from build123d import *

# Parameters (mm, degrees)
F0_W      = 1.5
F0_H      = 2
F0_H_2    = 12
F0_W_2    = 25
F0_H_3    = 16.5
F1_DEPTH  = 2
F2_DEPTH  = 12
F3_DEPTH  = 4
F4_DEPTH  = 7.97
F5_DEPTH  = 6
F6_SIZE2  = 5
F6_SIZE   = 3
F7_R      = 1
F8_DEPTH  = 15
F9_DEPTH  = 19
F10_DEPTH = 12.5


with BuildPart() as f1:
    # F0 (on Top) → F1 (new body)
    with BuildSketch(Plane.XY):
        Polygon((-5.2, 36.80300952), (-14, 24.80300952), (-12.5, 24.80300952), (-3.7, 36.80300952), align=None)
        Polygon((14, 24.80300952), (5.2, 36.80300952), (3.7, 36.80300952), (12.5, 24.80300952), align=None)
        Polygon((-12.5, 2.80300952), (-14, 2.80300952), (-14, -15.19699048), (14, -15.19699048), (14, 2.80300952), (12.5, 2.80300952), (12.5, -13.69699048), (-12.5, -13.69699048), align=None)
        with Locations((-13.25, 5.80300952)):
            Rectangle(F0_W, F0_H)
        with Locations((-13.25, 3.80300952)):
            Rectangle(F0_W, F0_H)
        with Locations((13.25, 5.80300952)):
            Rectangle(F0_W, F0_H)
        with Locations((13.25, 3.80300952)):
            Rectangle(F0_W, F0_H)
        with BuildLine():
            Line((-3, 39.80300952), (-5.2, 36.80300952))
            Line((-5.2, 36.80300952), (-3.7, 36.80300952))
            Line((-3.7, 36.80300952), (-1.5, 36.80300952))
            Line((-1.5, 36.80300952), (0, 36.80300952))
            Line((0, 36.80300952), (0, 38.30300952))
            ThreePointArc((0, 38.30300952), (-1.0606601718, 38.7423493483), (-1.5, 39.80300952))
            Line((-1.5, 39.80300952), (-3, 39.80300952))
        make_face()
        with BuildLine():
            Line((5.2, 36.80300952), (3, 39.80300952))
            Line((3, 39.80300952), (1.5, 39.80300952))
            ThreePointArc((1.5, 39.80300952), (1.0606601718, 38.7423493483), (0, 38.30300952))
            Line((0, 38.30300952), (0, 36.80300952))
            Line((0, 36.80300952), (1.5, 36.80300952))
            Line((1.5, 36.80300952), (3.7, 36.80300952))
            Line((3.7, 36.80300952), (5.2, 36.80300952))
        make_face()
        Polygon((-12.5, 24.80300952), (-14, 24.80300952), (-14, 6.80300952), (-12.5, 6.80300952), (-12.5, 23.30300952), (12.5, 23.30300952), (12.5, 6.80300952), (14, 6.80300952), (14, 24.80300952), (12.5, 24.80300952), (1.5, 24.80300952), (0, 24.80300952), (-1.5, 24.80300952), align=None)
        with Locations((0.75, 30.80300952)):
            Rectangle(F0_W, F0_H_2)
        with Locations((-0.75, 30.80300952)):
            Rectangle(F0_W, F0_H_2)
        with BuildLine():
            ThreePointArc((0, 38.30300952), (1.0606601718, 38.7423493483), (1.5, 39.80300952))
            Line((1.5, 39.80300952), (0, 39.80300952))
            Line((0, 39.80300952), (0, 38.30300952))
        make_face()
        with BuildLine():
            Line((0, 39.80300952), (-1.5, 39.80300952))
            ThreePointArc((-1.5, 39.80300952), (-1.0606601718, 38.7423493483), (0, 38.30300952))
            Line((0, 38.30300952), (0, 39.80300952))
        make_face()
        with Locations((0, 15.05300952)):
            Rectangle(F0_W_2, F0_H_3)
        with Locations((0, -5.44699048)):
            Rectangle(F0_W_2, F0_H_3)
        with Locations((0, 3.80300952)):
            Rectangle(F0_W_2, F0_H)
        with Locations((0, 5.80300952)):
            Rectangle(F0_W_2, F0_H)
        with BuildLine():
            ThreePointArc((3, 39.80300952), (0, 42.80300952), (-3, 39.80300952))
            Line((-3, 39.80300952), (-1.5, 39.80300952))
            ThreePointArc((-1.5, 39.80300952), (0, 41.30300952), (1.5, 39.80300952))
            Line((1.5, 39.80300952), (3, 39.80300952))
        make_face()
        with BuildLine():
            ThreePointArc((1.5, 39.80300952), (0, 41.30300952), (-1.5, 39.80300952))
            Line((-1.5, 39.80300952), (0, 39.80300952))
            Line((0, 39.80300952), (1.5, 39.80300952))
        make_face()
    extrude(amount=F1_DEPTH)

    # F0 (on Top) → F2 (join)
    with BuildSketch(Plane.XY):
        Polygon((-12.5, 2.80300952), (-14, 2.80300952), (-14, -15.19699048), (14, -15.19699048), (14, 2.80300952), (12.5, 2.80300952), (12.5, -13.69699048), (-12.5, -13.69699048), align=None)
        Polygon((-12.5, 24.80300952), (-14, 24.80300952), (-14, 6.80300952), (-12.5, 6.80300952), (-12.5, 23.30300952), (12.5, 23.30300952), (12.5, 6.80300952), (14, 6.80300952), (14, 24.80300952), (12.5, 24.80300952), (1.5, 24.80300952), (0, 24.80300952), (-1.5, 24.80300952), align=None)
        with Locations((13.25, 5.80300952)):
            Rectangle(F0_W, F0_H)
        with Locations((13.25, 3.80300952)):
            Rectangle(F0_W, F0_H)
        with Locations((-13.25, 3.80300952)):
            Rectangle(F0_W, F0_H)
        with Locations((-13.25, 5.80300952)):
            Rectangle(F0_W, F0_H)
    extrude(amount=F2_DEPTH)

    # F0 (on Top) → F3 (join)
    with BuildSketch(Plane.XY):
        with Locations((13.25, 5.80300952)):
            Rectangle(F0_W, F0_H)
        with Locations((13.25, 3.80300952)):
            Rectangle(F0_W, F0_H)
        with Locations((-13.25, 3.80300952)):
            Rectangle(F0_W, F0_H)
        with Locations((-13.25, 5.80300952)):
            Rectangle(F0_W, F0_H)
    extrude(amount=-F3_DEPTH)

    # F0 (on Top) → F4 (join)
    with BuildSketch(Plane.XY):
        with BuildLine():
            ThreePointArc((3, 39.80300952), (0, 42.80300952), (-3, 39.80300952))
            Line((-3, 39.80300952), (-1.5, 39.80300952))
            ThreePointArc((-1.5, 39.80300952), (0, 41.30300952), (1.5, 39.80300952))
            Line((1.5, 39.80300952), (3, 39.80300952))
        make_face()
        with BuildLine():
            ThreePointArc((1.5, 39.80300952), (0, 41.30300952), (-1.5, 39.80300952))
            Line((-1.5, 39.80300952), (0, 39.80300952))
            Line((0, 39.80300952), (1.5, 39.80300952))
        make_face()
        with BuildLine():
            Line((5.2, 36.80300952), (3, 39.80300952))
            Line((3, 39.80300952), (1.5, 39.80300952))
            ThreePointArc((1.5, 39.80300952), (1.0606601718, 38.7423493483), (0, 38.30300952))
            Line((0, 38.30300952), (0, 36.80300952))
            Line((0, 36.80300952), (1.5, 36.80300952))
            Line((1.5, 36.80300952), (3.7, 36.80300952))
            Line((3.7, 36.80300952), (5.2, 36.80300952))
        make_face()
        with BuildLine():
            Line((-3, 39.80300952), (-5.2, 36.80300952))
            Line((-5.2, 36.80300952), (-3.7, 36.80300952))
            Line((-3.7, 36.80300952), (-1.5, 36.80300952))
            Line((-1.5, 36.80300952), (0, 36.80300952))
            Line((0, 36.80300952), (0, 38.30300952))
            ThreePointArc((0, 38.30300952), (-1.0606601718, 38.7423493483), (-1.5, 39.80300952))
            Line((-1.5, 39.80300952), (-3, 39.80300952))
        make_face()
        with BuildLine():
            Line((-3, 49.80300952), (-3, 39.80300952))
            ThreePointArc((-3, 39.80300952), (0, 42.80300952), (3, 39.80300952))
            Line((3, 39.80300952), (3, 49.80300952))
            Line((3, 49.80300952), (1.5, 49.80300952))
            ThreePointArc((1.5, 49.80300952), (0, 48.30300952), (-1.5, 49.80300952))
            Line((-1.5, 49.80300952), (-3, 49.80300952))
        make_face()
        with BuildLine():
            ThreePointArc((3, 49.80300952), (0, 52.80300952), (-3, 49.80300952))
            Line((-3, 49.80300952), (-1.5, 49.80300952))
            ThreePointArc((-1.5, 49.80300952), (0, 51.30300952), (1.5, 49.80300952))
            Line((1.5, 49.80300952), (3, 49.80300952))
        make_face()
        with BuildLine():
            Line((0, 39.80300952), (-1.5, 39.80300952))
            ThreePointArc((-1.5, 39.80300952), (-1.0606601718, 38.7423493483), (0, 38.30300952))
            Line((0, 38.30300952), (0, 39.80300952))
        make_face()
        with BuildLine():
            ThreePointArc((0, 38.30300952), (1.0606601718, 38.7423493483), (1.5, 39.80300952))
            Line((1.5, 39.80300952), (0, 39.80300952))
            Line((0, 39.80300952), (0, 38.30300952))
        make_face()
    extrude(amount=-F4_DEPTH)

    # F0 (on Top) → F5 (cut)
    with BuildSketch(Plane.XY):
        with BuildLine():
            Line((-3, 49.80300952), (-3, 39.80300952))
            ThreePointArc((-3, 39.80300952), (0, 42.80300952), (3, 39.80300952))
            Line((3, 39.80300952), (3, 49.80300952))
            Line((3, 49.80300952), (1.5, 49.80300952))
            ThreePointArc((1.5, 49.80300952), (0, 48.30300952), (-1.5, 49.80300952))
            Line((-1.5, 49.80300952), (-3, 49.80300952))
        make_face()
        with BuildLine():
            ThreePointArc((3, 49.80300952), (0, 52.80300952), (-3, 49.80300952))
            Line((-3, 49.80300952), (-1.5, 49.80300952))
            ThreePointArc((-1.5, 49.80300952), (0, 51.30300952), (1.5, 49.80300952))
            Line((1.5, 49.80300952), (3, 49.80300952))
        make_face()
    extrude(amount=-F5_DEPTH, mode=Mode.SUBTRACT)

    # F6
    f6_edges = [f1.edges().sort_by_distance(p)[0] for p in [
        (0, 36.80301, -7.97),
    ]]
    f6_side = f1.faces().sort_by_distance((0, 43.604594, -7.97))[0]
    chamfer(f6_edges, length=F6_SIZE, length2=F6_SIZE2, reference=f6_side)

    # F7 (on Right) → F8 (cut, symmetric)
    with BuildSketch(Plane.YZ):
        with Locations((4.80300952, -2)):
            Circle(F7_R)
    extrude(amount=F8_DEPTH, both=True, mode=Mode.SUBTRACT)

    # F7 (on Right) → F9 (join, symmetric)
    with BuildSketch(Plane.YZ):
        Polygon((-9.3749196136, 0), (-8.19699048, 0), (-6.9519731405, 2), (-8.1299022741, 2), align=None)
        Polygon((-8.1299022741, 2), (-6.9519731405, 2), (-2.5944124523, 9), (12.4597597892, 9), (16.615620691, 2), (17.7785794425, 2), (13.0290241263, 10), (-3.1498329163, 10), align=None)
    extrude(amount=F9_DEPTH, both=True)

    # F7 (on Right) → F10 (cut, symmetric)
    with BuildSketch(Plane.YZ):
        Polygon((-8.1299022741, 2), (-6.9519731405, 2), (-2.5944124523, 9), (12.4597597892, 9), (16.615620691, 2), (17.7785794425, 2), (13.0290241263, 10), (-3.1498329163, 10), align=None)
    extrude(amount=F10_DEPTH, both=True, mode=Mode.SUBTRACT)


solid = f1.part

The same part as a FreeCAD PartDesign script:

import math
import FreeCAD as App
import Part
import Sketcher
from FreeCAD import Vector


def edges_at(feature, points):
    """Names of the edges that pass closest to the given points."""
    edges = feature.Shape.Edges
    near = lambda p: min(range(len(edges)), key=lambda i: edges[i].distToShape(Part.Vertex(*p))[0])
    return sorted({f"Edge{near(p) + 1}" for p in points})


def add_polygon(sketch, points):
    """Adds a closed chain of lines whose ends are joined by coincident constraints."""
    first, n = sketch.GeometryCount, len(points)
    for a, b in zip(points, points[1:] + points[:1]):
        sketch.addGeometry(Part.LineSegment(App.Vector(*a, 0), App.Vector(*b, 0)), False)
    for i in range(n):
        sketch.addConstraint(Sketcher.Constraint("Coincident", first + i, 2, first + (i + 1) % n, 1))

doc = App.newDocument("Part")
body = doc.addObject("PartDesign::Body", "Body")

# Sketch on XY plane
sketch1 = body.newObject("Sketcher::SketchObject", "Sketch")
sketch1.AttachmentSupport = (doc.getObject("XY_Plane"), [""])
sketch1.MapMode = "FlatFace"
sketch1.addGeometry(Part.LineSegment(Vector(14, 24.8, 0), Vector(3, 39.8, 0)), False)  # 0
sketch1.addGeometry(Part.ArcOfCircle(Part.Circle(Vector(0, 39.8, 0), Vector(0, 0, 1), 3), math.radians(0), math.radians(180)), False)  # 1
sketch1.addGeometry(Part.LineSegment(Vector(-3, 39.8, 0), Vector(-14, 24.8, 0)), False)  # 2
sketch1.addGeometry(Part.LineSegment(Vector(-14, 24.8, 0), Vector(-14, -15.2, 0)), False)  # 3
sketch1.addGeometry(Part.LineSegment(Vector(-14, -15.2, 0), Vector(14, -15.2, 0)), False)  # 4
sketch1.addGeometry(Part.LineSegment(Vector(14, -15.2, 0), Vector(14, 24.8, 0)), False)  # 5
add_polygon(sketch1, [(-12.5, 24.8), (-3.7, 36.8), (-1.5, 36.8), (-1.5, 24.8)])  # lines 6-9
add_polygon(sketch1, [(1.5, 36.8), (3.7, 36.8), (12.5, 24.8), (1.5, 24.8)])  # lines 10-13
sketch1.addConstraint(Sketcher.Constraint("Coincident", 0, 2, 1, 1))
sketch1.addConstraint(Sketcher.Constraint("Coincident", 1, 2, 2, 1))
sketch1.addConstraint(Sketcher.Constraint("Coincident", 2, 2, 3, 1))
sketch1.addConstraint(Sketcher.Constraint("Coincident", 3, 2, 4, 1))
sketch1.addConstraint(Sketcher.Constraint("Coincident", 4, 2, 5, 1))
sketch1.addConstraint(Sketcher.Constraint("Coincident", 5, 2, 0, 1))
sketch1.addConstraint(Sketcher.Constraint("Vertical", 3))
sketch1.addConstraint(Sketcher.Constraint("Horizontal", 4))
sketch1.addConstraint(Sketcher.Constraint("Vertical", 5))
sketch1.addConstraint(Sketcher.Constraint("Horizontal", 7))
sketch1.addConstraint(Sketcher.Constraint("Vertical", 8))
sketch1.addConstraint(Sketcher.Constraint("Horizontal", 9))
sketch1.addConstraint(Sketcher.Constraint("Horizontal", 10))
sketch1.addConstraint(Sketcher.Constraint("Horizontal", 12))
sketch1.addConstraint(Sketcher.Constraint("Vertical", 13))
sketch1.addConstraint(Sketcher.Constraint("Symmetric", 0, 2, 1, 2, -2))
sketch1.addConstraint(Sketcher.Constraint("Symmetric", 2, 2, 5, 2, -2))
sketch1.addConstraint(Sketcher.Constraint("Symmetric", 6, 2, 10, 2, -2))
sketch1.addConstraint(Sketcher.Constraint("Symmetric", 9, 2, 11, 2, -2))
sketch1.addConstraint(Sketcher.Constraint("Parallel", 2, 6))
sketch1.addConstraint(Sketcher.Constraint("Horizontal", 1, 3, 0, 2))
sketch1.addConstraint(Sketcher.Constraint("Horizontal", 5, 2, 8, 2))
sketch1.addConstraint(Sketcher.Constraint("Equal", 7, 10))
sketch1.addConstraint(Sketcher.Constraint("Radius", 1, 3.0))
sketch1.addConstraint(Sketcher.Constraint("DistanceX", 4, 1, 4, 2, 28.0))
sketch1.addConstraint(Sketcher.Constraint("DistanceX", 9, 2, 9, 1, 11.0))
sketch1.addConstraint(Sketcher.Constraint("DistanceY", 3, 2, 3, 1, 40.0))
sketch1.addConstraint(Sketcher.Constraint("DistanceY", 8, 2, 8, 1, 12.0))
sketch1.addConstraint(Sketcher.Constraint("DistanceX", 7, 1, 7, 2, 2.2))
sketch1.addConstraint(Sketcher.Constraint("DistanceX", 8, 2, 11, 2, 14.0))
sketch1.addConstraint(Sketcher.Constraint("DistanceY", -1, 1, 1, 3, 39.80301))
pad1 = body.newObject("PartDesign::Pad", "Pad")
pad1.Profile = sketch1
pad1.Length = 2

# Sketch on XY plane
sketch2 = body.newObject("Sketcher::SketchObject", "Sketch001")
sketch2.AttachmentSupport = (doc.getObject("XY_Plane"), [""])
sketch2.MapMode = "FlatFace"
add_polygon(sketch2, [(-14, -15), (14, -15), (14, 25), (-14, 25)])  # lines 0-3
add_polygon(sketch2, [(-12, 23), (12, 23), (12, -14), (-12, -14)])  # lines 4-7
sketch2.addConstraint(Sketcher.Constraint("Horizontal", 0))
sketch2.addConstraint(Sketcher.Constraint("Vertical", 1))
sketch2.addConstraint(Sketcher.Constraint("Horizontal", 2))
sketch2.addConstraint(Sketcher.Constraint("Vertical", 3))
sketch2.addConstraint(Sketcher.Constraint("Horizontal", 4))
sketch2.addConstraint(Sketcher.Constraint("Vertical", 5))
sketch2.addConstraint(Sketcher.Constraint("Horizontal", 6))
sketch2.addConstraint(Sketcher.Constraint("Vertical", 7))
sketch2.addConstraint(Sketcher.Constraint("DistanceX", 0, 1, 0, 2, 28.0))
sketch2.addConstraint(Sketcher.Constraint("DistanceX", 4, 1, 4, 2, 25.0))
sketch2.addConstraint(Sketcher.Constraint("DistanceY", 1, 1, 1, 2, 40.0))
sketch2.addConstraint(Sketcher.Constraint("DistanceY", 5, 2, 5, 1, 37.0))
sketch2.addConstraint(Sketcher.Constraint("DistanceX", -1, 1, 0, 2, 14.0))
sketch2.addConstraint(Sketcher.Constraint("DistanceX", -1, 1, 4, 2, 12.5))
sketch2.addConstraint(Sketcher.Constraint("DistanceY", 4, 2, 1, 2, 1.5))
sketch2.addConstraint(Sketcher.Constraint("DistanceY", 0, 2, -1, 1, 15.19699))
pad2 = body.newObject("PartDesign::Pad", "Pad001")
pad2.Profile = sketch2
pad2.Length = 12

# Sketch on XY plane
sketch3 = body.newObject("Sketcher::SketchObject", "Sketch002")
sketch3.AttachmentSupport = (doc.getObject("XY_Plane"), [""])
sketch3.MapMode = "FlatFace"
add_polygon(sketch3, [(12.5, 6.8), (12.5, 2.8), (14, 2.8), (14, 6.8)])  # lines 0-3
add_polygon(sketch3, [(-14, 2.8), (-12.5, 2.8), (-12.5, 6.8), (-14, 6.8)])  # lines 4-7
sketch3.addConstraint(Sketcher.Constraint("Vertical", 0))
sketch3.addConstraint(Sketcher.Constraint("Horizontal", 1))
sketch3.addConstraint(Sketcher.Constraint("Vertical", 2))
sketch3.addConstraint(Sketcher.Constraint("Horizontal", 3))
sketch3.addConstraint(Sketcher.Constraint("Horizontal", 4))
sketch3.addConstraint(Sketcher.Constraint("Vertical", 5))
sketch3.addConstraint(Sketcher.Constraint("Horizontal", 6))
sketch3.addConstraint(Sketcher.Constraint("Vertical", 7))
sketch3.addConstraint(Sketcher.Constraint("Symmetric", 0, 2, 4, 2, -2))
sketch3.addConstraint(Sketcher.Constraint("Symmetric", 2, 2, 6, 2, -2))
sketch3.addConstraint(Sketcher.Constraint("DistanceY", 0, 2, 0, 1, 4.0))
sketch3.addConstraint(Sketcher.Constraint("DistanceX", 1, 1, 1, 2, 1.5))
sketch3.addConstraint(Sketcher.Constraint("DistanceX", -1, 1, 1, 2, 14.0))
sketch3.addConstraint(Sketcher.Constraint("DistanceY", -1, 1, 0, 2, 2.80301))
pad3 = body.newObject("PartDesign::Pad", "Pad002")
pad3.Profile = sketch3
pad3.Length = 4
pad3.Reversed = True

# Sketch on XY plane
sketch4 = body.newObject("Sketcher::SketchObject", "Sketch003")
sketch4.AttachmentSupport = (doc.getObject("XY_Plane"), [""])
sketch4.MapMode = "FlatFace"
sketch4.addGeometry(Part.LineSegment(Vector(-3, 39.8, 0), Vector(-5.2, 36.8, 0)), False)
sketch4.addGeometry(Part.LineSegment(Vector(-5.2, 36.8, 0), Vector(5.2, 36.8, 0)), False)
sketch4.addGeometry(Part.LineSegment(Vector(5.2, 36.8, 0), Vector(3, 39.8, 0)), False)
sketch4.addGeometry(Part.LineSegment(Vector(3, 39.8, 0), Vector(3, 49.8, 0)), False)
sketch4.addGeometry(Part.ArcOfCircle(Part.Circle(Vector(0, 49.8, 0), Vector(0, 0, 1), 3), math.radians(0), math.radians(180)), False)
sketch4.addGeometry(Part.LineSegment(Vector(-3, 49.8, 0), Vector(-3, 39.8, 0)), False)
sketch4.addGeometry(Part.Circle(Vector(0, 49.8, 0), Vector(0, 0, 1), 1.5), False)
sketch4.addConstraint(Sketcher.Constraint("Coincident", 0, 2, 1, 1))
sketch4.addConstraint(Sketcher.Constraint("Coincident", 1, 2, 2, 1))
sketch4.addConstraint(Sketcher.Constraint("Coincident", 2, 2, 3, 1))
sketch4.addConstraint(Sketcher.Constraint("Tangent", 3, 2, 4, 1))
sketch4.addConstraint(Sketcher.Constraint("Tangent", 4, 2, 5, 1))
sketch4.addConstraint(Sketcher.Constraint("Coincident", 5, 2, 0, 1))
sketch4.addConstraint(Sketcher.Constraint("Horizontal", 1))
sketch4.addConstraint(Sketcher.Constraint("Vertical", 3))
sketch4.addConstraint(Sketcher.Constraint("Vertical", 5))
sketch4.addConstraint(Sketcher.Constraint("Coincident", 6, 3, 4, 3))
sketch4.addConstraint(Sketcher.Constraint("Symmetric", 2, 2, 5, 2, -2))
sketch4.addConstraint(Sketcher.Constraint("Equal", 0, 2))
sketch4.addConstraint(Sketcher.Constraint("Diameter", 6, 3.0))
sketch4.addConstraint(Sketcher.Constraint("Radius", 4, 3.0))
sketch4.addConstraint(Sketcher.Constraint("DistanceY", 3, 1, 3, 2, 10.0))
sketch4.addConstraint(Sketcher.Constraint("DistanceX", 1, 1, 1, 2, 10.4))
sketch4.addConstraint(Sketcher.Constraint("DistanceY", 0, 2, 4, 3, 13.0))
sketch4.addConstraint(Sketcher.Constraint("DistanceY", -1, 1, 4, 3, 49.80301))
pad4 = body.newObject("PartDesign::Pad", "Pad003")
pad4.Profile = sketch4
pad4.Length = 7.97
pad4.Reversed = True

# Sketch on XY plane
sketch5 = body.newObject("Sketcher::SketchObject", "Sketch004")
sketch5.AttachmentSupport = (doc.getObject("XY_Plane"), [""])
sketch5.MapMode = "FlatFace"
sketch5.addGeometry(Part.LineSegment(Vector(-3, 49.8, 0), Vector(-3, 39.8, 0)), False)
sketch5.addGeometry(Part.ArcOfCircle(Part.Circle(Vector(0, 39.8, 0), Vector(0, 0, 1), 3), math.radians(0), math.radians(180)), False)
sketch5.addGeometry(Part.LineSegment(Vector(3, 39.8, 0), Vector(3, 49.8, 0)), False)
sketch5.addGeometry(Part.ArcOfCircle(Part.Circle(Vector(0, 49.8, 0), Vector(0, 0, 1), 3), math.radians(0), math.radians(180)), False)
sketch5.addGeometry(Part.Circle(Vector(0, 49.8, 0), Vector(0, 0, 1), 1.5), False)
sketch5.addConstraint(Sketcher.Constraint("Tangent", 0, 2, 1, 2))
sketch5.addConstraint(Sketcher.Constraint("Tangent", 1, 1, 2, 1))
sketch5.addConstraint(Sketcher.Constraint("Tangent", 2, 2, 3, 1))
sketch5.addConstraint(Sketcher.Constraint("Tangent", 3, 2, 0, 1))
sketch5.addConstraint(Sketcher.Constraint("Vertical", 0))
sketch5.addConstraint(Sketcher.Constraint("Vertical", 2))
sketch5.addConstraint(Sketcher.Constraint("Coincident", 4, 3, 3, 3))
sketch5.addConstraint(Sketcher.Constraint("PointOnObject", 1, 3, -2))
sketch5.addConstraint(Sketcher.Constraint("Diameter", 4, 3.0))
sketch5.addConstraint(Sketcher.Constraint("Radius", 1, 3.0))
sketch5.addConstraint(Sketcher.Constraint("DistanceY", 0, 2, 0, 1, 10.0))
sketch5.addConstraint(Sketcher.Constraint("DistanceY", -1, 1, 1, 3, 39.80301))
pocket1 = body.newObject("PartDesign::Pocket", "Pocket")
pocket1.Profile = sketch5
pocket1.Length = 6
doc.recompute()

chamfer = body.newObject("PartDesign::Chamfer", "Chamfer")
chamfer.Base = (pocket1, edges_at(pocket1, [(0, 36.803, -7.97)]))
chamfer.ChamferType = "Two distances"
chamfer.Size = 3
chamfer.Size2 = 5
chamfer.FlipDirection = True

# Sketch on YZ plane
sketch6 = body.newObject("Sketcher::SketchObject", "Sketch005")
sketch6.AttachmentSupport = (doc.getObject("YZ_Plane"), [""])
sketch6.MapMode = "FlatFace"
sketch6.addGeometry(Part.Circle(Vector(4.8, -2, 0), Vector(0, 0, 1), 1), False)
sketch6.addConstraint(Sketcher.Constraint("Diameter", 0, 2.0))
sketch6.addConstraint(Sketcher.Constraint("DistanceY", 0, 3, -1, 1, 2.0))
sketch6.addConstraint(Sketcher.Constraint("DistanceX", -1, 1, 0, 3, 4.80301))
pocket2 = body.newObject("PartDesign::Pocket", "Pocket001")
pocket2.Profile = sketch6
pocket2.Length = 30
pocket2.Midplane = True

# Sketch on YZ plane
sketch7 = body.newObject("Sketcher::SketchObject", "Sketch006")
sketch7.AttachmentSupport = (doc.getObject("YZ_Plane"), [""])
sketch7.MapMode = "FlatFace"
add_polygon(sketch7, [(-8.1, 2), (-9.4, 0), (-8.2, 0), (-7, 2), (-2.6, 9), (12.5, 9), (16.6, 2), (17.8, 2), (13, 10), (-3.1, 10)])  # lines 0-9
sketch7.addConstraint(Sketcher.Constraint("Horizontal", 1))
sketch7.addConstraint(Sketcher.Constraint("Horizontal", 4))
sketch7.addConstraint(Sketcher.Constraint("Horizontal", 6))
sketch7.addConstraint(Sketcher.Constraint("Horizontal", 8))
sketch7.addConstraint(Sketcher.Constraint("PointOnObject", 0, 2, -1))
sketch7.addConstraint(Sketcher.Constraint("Parallel", 0, 2))
sketch7.addConstraint(Sketcher.Constraint("Parallel", 2, 3))
sketch7.addConstraint(Sketcher.Constraint("Parallel", 5, 7))
sketch7.addConstraint(Sketcher.Constraint("Parallel", 3, 9))
sketch7.addConstraint(Sketcher.Constraint("Horizontal", 2, 2, 5, 2))
sketch7.addConstraint(Sketcher.Constraint("Horizontal", 6, 2, 9, 2))
sketch7.addConstraint(Sketcher.Constraint("DistanceY", -1, 1, 2, 2, 2.0))
sketch7.addConstraint(Sketcher.Constraint("DistanceY", -1, 1, 3, 2, 9.0))
sketch7.addConstraint(Sketcher.Constraint("DistanceY", -1, 1, 7, 2, 10.0))
sketch7.addConstraint(Sketcher.Constraint("DistanceX", 1, 1, 1, 2, 1.177929))
sketch7.addConstraint(Sketcher.Constraint("DistanceX", 6, 1, 6, 2, 1.162959))
sketch7.addConstraint(Sketcher.Constraint("Distance", 0, 2.355858))
sketch7.addConstraint(Sketcher.Constraint("Distance", 5, 8.140711))
sketch7.addConstraint(Sketcher.Constraint("DistanceX", 4, 1, 4, 2, 15.054172))
sketch7.addConstraint(Sketcher.Constraint("DistanceX", 0, 2, -1, 1, 9.37492))
pad5 = body.newObject("PartDesign::Pad", "Pad004")
pad5.Profile = sketch7
pad5.Length = 38
pad5.Midplane = True

# Sketch on YZ plane
sketch8 = body.newObject("Sketcher::SketchObject", "Sketch007")
sketch8.AttachmentSupport = (doc.getObject("YZ_Plane"), [""])
sketch8.MapMode = "FlatFace"
add_polygon(sketch8, [(-8.1, 2), (-7, 2), (-2.6, 9), (12.5, 9), (16.6, 2), (17.8, 2), (13, 10), (-3.1, 10)])  # lines 0-7
sketch8.addConstraint(Sketcher.Constraint("Horizontal", 0))
sketch8.addConstraint(Sketcher.Constraint("Horizontal", 2))
sketch8.addConstraint(Sketcher.Constraint("Horizontal", 4))
sketch8.addConstraint(Sketcher.Constraint("Horizontal", 6))
sketch8.addConstraint(Sketcher.Constraint("Parallel", 3, 5))
sketch8.addConstraint(Sketcher.Constraint("Parallel", 1, 7))
sketch8.addConstraint(Sketcher.Constraint("Horizontal", 0, 2, 3, 2))
sketch8.addConstraint(Sketcher.Constraint("DistanceY", -1, 1, 0, 2, 2.0))
sketch8.addConstraint(Sketcher.Constraint("DistanceY", -1, 1, 1, 2, 9.0))
sketch8.addConstraint(Sketcher.Constraint("DistanceY", -1, 1, 5, 2, 10.0))
sketch8.addConstraint(Sketcher.Constraint("DistanceX", 0, 1, 0, 2, 1.177929))
sketch8.addConstraint(Sketcher.Constraint("DistanceX", 4, 1, 4, 2, 1.162959))
sketch8.addConstraint(Sketcher.Constraint("Distance", 3, 8.140711))
sketch8.addConstraint(Sketcher.Constraint("DistanceX", 2, 1, 2, 2, 15.054172))
sketch8.addConstraint(Sketcher.Constraint("DistanceX", 6, 2, 6, 1, 16.178857))
sketch8.addConstraint(Sketcher.Constraint("DistanceX", -1, 1, 2, 2, 12.45976))
pocket3 = body.newObject("PartDesign::Pocket", "Pocket002")
pocket3.Profile = sketch8
pocket3.Length = 25
pocket3.Midplane = True

doc.recompute()
